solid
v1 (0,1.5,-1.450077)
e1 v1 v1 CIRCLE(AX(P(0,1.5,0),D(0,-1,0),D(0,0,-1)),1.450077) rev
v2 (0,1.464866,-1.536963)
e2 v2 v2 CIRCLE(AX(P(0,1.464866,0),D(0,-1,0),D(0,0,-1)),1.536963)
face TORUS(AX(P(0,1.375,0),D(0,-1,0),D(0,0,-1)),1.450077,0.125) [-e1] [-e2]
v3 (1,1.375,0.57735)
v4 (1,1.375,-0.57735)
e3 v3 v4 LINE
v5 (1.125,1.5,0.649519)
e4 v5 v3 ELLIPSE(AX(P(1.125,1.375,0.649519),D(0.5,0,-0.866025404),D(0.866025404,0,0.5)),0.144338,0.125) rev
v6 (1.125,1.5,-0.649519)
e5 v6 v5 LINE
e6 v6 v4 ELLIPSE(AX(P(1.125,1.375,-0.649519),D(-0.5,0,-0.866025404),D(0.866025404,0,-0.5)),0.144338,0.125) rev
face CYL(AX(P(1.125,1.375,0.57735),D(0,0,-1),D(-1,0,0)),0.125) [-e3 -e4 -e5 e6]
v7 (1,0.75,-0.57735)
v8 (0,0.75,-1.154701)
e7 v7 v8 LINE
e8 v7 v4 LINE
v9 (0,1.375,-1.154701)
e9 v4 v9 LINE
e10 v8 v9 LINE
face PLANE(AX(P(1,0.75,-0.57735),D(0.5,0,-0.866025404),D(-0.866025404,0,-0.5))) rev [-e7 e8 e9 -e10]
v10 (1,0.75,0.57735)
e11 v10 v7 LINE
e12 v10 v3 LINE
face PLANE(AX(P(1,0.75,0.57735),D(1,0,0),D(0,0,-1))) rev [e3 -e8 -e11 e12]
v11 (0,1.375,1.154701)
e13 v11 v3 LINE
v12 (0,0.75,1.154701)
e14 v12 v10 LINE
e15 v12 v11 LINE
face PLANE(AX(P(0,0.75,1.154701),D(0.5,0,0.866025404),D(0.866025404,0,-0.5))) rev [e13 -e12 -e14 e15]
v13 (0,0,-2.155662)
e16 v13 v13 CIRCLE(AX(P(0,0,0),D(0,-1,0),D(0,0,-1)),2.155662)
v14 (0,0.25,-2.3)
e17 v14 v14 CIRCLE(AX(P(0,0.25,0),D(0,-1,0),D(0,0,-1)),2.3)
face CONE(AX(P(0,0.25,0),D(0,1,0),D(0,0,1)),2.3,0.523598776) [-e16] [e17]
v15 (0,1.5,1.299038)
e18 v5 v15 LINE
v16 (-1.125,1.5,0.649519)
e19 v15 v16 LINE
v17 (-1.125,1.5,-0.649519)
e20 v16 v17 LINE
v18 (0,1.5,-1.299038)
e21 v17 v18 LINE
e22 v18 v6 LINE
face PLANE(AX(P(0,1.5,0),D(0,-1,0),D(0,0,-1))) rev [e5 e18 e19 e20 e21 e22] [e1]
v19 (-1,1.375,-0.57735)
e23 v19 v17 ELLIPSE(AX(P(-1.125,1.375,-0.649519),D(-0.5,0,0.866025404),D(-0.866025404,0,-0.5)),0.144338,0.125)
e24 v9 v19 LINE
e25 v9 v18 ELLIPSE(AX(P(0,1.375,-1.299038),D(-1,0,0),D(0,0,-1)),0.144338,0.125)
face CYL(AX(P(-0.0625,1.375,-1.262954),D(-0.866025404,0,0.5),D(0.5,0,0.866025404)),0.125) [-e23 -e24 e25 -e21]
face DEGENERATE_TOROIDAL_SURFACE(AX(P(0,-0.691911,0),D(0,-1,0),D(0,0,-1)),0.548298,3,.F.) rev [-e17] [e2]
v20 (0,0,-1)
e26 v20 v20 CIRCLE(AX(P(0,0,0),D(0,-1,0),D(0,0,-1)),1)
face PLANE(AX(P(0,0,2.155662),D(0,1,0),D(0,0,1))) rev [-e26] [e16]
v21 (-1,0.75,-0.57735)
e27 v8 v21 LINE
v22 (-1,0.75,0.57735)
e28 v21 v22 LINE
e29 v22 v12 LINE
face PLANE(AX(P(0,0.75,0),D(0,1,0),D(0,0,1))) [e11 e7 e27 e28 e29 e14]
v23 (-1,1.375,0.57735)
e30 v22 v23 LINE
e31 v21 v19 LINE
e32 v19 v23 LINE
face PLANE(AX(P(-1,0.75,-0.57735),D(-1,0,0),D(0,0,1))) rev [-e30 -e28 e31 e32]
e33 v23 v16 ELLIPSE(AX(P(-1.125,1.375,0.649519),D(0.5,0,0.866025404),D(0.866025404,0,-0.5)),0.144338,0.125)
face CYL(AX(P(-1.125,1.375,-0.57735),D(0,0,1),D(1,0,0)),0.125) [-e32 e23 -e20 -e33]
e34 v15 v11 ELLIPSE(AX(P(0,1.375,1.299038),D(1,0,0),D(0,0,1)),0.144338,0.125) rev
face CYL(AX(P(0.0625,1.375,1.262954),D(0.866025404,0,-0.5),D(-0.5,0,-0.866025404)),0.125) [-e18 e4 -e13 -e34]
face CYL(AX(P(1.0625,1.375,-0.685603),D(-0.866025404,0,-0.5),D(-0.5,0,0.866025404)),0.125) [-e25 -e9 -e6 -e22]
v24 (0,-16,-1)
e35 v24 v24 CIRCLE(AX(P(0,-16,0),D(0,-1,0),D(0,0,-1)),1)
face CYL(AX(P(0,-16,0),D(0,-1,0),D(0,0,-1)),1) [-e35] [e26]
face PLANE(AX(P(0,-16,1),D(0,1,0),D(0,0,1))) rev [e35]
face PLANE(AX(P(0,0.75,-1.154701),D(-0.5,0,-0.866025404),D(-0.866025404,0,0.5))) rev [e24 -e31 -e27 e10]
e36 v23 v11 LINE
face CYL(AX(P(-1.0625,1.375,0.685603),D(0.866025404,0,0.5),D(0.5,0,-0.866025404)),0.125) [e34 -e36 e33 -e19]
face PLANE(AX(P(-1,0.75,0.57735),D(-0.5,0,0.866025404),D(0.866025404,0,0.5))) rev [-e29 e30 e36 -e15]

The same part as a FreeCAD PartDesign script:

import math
import FreeCAD as App
import Part
import Sketcher
from FreeCAD import Vector
Q = App.Units.Quantity


def edges_at(feature, points):
    """Names of the edges that pass closest to the given points."""
    edges = feature.Shape.Edges
    near = lambda p: min(range(len(edges)), key=lambda i: edges[i].distToShape(Part.Vertex(*p))[0])
    return sorted({f"Edge{near(p) + 1}" for p in points})


def add_polygon(sketch, points):
    """Adds a closed chain of lines whose ends are joined by coincident constraints."""
    first, n = sketch.GeometryCount, len(points)
    for a, b in zip(points, points[1:] + points[:1]):
        sketch.addGeometry(Part.LineSegment(App.Vector(*a, 0), App.Vector(*b, 0)), False)
    for i in range(n):
        sketch.addConstraint(Sketcher.Constraint("Coincident", first + i, 2, first + (i + 1) % n, 1))

doc = App.newDocument("Part")
body = doc.addObject("PartDesign::Body", "Body")

sketch1 = body.newObject("Sketcher::SketchObject", "Sketch")
sketch1.AttachmentSupport = (doc.getObject("YZ_Plane"), [""])
sketch1.MapMode = "FlatFace"
sketch1.addGeometry([
    Part.LineSegment(Vector(1.5, 0, 0), Vector(1.5, 1.5, 0)),
    Part.ArcOfCircle(Part.Circle(Vector(-0.691911, -0.548298, 0), Vector(0, 0, 1), 3), math.radians(43.060178), math.radians(71.701336)),
    Part.LineSegment(Vector(0.25, 2.3, 0), Vector(0, 2.155662, 0)),
    Part.LineSegment(Vector(0, 2.155662, 0), Vector(0, 1, 0)),
    Part.LineSegment(Vector(0, 1, 0), Vector(-16, 1, 0)),
    Part.LineSegment(Vector(-16, 1, 0), Vector(-16, 0, 0)),
    Part.LineSegment(Vector(-16, 0, 0), Vector(1.5, 0, 0)),
], False)
sketch1.addConstraint([
    Sketcher.Constraint("Coincident", 0, 2, 1, 1),
    Sketcher.Constraint("Coincident", 1, 2, 2, 1),
    Sketcher.Constraint("Coincident", 2, 2, 3, 1),
    Sketcher.Constraint("Coincident", 3, 2, 4, 1),
    Sketcher.Constraint("Coincident", 4, 2, 5, 1),
    Sketcher.Constraint("Coincident", 5, 2, 6, 1),
    Sketcher.Constraint("Coincident", 6, 2, 0, 1),
    Sketcher.Constraint("Vertical", 0),
    Sketcher.Constraint("Vertical", 3),
    Sketcher.Constraint("Horizontal", 4),
    Sketcher.Constraint("Vertical", 5),
    Sketcher.Constraint("Horizontal", 6),
    Sketcher.Constraint("PointOnObject", 2, 2, -2),
    Sketcher.Constraint("PointOnObject", 5, 2, -1),
    Sketcher.Constraint("Radius", 1, Q("3 mm")),
    Sketcher.Constraint("DistanceX", 4, 2, 4, 1, Q("16 mm")),
    Sketcher.Constraint("DistanceY", 5, 2, 5, 1, Q("1 mm")),
    Sketcher.Constraint("Angle", 2, Q("-150 deg")),
    Sketcher.Constraint("DistanceX", 6, 1, 6, 2, Q("17.5 mm")),
    Sketcher.Constraint("DistanceY", 0, 1, 0, 2, Q("1.5 mm")),
    Sketcher.Constraint("DistanceY", -1, 1, 1, 2, Q("2.3 mm")),
    Sketcher.Constraint("DistanceX", -1, 1, 1, 2, Q("0.25 mm")),
])
revolution = body.newObject("PartDesign::Revolution", "Revolution")
revolution.Profile = sketch1
revolution.ReferenceAxis = (sketch1, ["H_Axis"])
revolution.Angle = 360

sketch2 = body.newObject("Sketcher::SketchObject", "Sketch001")
sketch2.AttachmentSupport = (doc.getObject("XZ_Plane"), [""])
sketch2.MapMode = "FlatFace"
sketch2.AttachmentOffset = App.Placement(Vector(0, 0, -1.5), App.Rotation())
add_polygon(sketch2, [(0, -1.154701), (-1, -0.57735), (-1, 0.57735), (0, 1.154701), (1, 0.57735), (1, -0.57735)])
sketch2.addConstraint([
    Sketcher.Constraint("Vertical", 1),
    Sketcher.Constraint("Vertical", 4),
    Sketcher.Constraint("Symmetric", 0, 2, 3, 2, -1, 1),
    Sketcher.Constraint("Symmetric", 2, 2, 5, 2, -1, 1),
    Sketcher.Constraint("PointOnObject", 2, 2, -2),
    Sketcher.Constraint("Parallel", 2, 5),
    Sketcher.Constraint("Horizontal", 1, 2, 3, 2),
    Sketcher.Constraint("Angle", 0, Q("150 deg")),
    Sketcher.Constraint("DistanceX", 0, 2, -1, 1, Q("1 mm")),
    Sketcher.Constraint("DistanceY", 1, 1, 1, 2, Q("1.154701 mm")),
])
pocket1 = body.newObject("PartDesign::Pocket", "Pocket")
pocket1.Profile = sketch2
pocket1.Length = 0.75
pocket1.Reversed = True
doc.recompute()

fillet = body.newObject("PartDesign::Fillet", "Fillet")
fillet.Base = (pocket1, edges_at(pocket1, [
    (0.5, 1.5, -0.866),
    (-0.5, 1.5, -0.866),
    (-1, 1.5, 0),
    (-0.5, 1.5, 0.866),
    (0.5, 1.5, 0.866),
    (1, 1.5, 0),
    (0, 1.5, -1.5),
]))
fillet.Radius = 0.125

doc.recompute()
